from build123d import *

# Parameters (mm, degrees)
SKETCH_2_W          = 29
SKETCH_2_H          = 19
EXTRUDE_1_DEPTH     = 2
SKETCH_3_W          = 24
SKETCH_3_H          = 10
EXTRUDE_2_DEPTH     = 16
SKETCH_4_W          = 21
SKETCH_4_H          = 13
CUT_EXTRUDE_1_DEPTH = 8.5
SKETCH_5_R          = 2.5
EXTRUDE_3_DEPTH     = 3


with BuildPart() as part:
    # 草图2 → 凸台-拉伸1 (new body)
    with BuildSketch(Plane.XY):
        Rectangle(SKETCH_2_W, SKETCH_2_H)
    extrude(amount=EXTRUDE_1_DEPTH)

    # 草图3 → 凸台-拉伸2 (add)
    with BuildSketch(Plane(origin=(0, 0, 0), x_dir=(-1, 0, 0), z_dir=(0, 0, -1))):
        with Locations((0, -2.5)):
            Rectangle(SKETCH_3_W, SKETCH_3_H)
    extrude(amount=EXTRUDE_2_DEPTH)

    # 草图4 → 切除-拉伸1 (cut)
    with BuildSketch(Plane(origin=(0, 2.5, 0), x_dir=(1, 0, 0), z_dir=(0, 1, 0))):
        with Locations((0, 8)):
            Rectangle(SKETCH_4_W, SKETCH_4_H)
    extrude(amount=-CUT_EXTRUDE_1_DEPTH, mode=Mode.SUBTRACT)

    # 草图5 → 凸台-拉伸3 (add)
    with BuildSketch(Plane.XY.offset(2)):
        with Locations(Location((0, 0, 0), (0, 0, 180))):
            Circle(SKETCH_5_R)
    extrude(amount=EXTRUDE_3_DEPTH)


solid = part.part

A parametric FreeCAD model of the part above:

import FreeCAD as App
import Part
import Sketcher
from FreeCAD import Vector


def add_polygon(sketch, points):
    """Adds a closed chain of lines whose ends are joined by coincident constraints."""
    first, n = sketch.GeometryCount, len(points)
    for a, b in zip(points, points[1:] + points[:1]):
        sketch.addGeometry(Part.LineSegment(App.Vector(*a, 0), App.Vector(*b, 0)), False)
    for i in range(n):
        sketch.addConstraint(Sketcher.Constraint("Coincident", first + i, 2, first + (i + 1) % n, 1))

doc = App.newDocument("Part")
body = doc.addObject("PartDesign::Body", "Body")

# Sketch on XY plane
sketch1 = body.newObject("Sketcher::SketchObject", "Sketch")
sketch1.AttachmentSupport = (doc.getObject("XY_Plane"), [""])
sketch1.MapMode = "FlatFace"
add_polygon(sketch1, [(-14, 10), (-14, -10), (14, -10), (14, 10)])  # lines 0-3
sketch1.addConstraint(Sketcher.Constraint("Vertical", 0))
sketch1.addConstraint(Sketcher.Constraint("Horizontal", 1))
sketch1.addConstraint(Sketcher.Constraint("Vertical", 2))
sketch1.addConstraint(Sketcher.Constraint("Horizontal", 3))
sketch1.addConstraint(Sketcher.Constraint("Symmetric", 0, 2, 2, 2, -1, 1))
sketch1.addConstraint(Sketcher.Constraint("DistanceX", 1, 1, 1, 2, 29.0))
sketch1.addConstraint(Sketcher.Constraint("DistanceY", 0, 2, 0, 1, 19.0))
pad1 = body.newObject("PartDesign::Pad", "Pad")
pad1.Profile = sketch1
pad1.Length = 2

# Sketch on XY plane
sketch2 = body.newObject("Sketcher::SketchObject", "Sketch001")
sketch2.AttachmentSupport = (doc.getObject("XY_Plane"), [""])
sketch2.MapMode = "FlatFace"
add_polygon(sketch2, [(12, 2), (12, -8), (-12, -8), (-12, 2)])  # lines 0-3
sketch2.addConstraint(Sketcher.Constraint("Vertical", 0))
sketch2.addConstraint(Sketcher.Constraint("Horizontal", 1))
sketch2.addConstraint(Sketcher.Constraint("Vertical", 2))
sketch2.addConstraint(Sketcher.Constraint("Horizontal", 3))
sketch2.addConstraint(Sketcher.Constraint("DistanceX", 1, 2, 1, 1, 24.0))
sketch2.addConstraint(Sketcher.Constraint("DistanceY", 0, 2, 0, 1, 10.0))
sketch2.addConstraint(Sketcher.Constraint("DistanceX", -1, 1, 0, 2, 12.0))
sketch2.addConstraint(Sketcher.Constraint("DistanceY", 0, 2, -1, 1, 7.5))
pad2 = body.newObject("PartDesign::Pad", "Pad001")
pad2.Profile = sketch2
pad2.Length = 16
pad2.Reversed = True

# Sketch on XZ plane
sketch3 = body.newObject("Sketcher::SketchObject", "Sketch002")
sketch3.AttachmentSupport = (doc.getObject("XZ_Plane"), [""])
sketch3.MapMode = "FlatFace"
sketch3.AttachmentOffset = App.Placement(Vector(0, 0, -2.5), App.Rotation())
add_polygon(sketch3, [(-10, -14), (-10, -2), (10, -2), (10, -14)])  # lines 0-3
sketch3.addConstraint(Sketcher.Constraint("Vertical", 0))
sketch3.addConstraint(Sketcher.Constraint("Horizontal", 1))
sketch3.addConstraint(Sketcher.Constraint("Vertical", 2))
sketch3.addConstraint(Sketcher.Constraint("Horizontal", 3))
sketch3.addConstraint(Sketcher.Constraint("DistanceX", 1, 1, 1, 2, 21.0))
sketch3.addConstraint(Sketcher.Constraint("DistanceY", 0, 1, 0, 2, 13.0))
sketch3.addConstraint(Sketcher.Constraint("DistanceX", 0, 2, -1, 1, 10.5))
sketch3.addConstraint(Sketcher.Constraint("DistanceY", 0, 2, -1, 1, 1.5))
pocket1 = body.newObject("PartDesign::Pocket", "Pocket")
pocket1.Profile = sketch3
pocket1.Length = 8.5
pocket1.Reversed = True

# Sketch on XY plane
sketch4 = body.newObject("Sketcher::SketchObject", "Sketch003")
sketch4.AttachmentSupport = (doc.getObject("XY_Plane"), [""])
sketch4.MapMode = "FlatFace"
sketch4.AttachmentOffset = App.Placement(Vector(0, 0, 2), App.Rotation())
sketch4.addGeometry(Part.Circle(Vector(0, 0, 0), Vector(0, 0, 1), 2.5), False)
sketch4.addConstraint(Sketcher.Constraint("Coincident", 0, 3, -1, 1))
sketch4.addConstraint(Sketcher.Constraint("Diameter", 0, 5.0))
pad3 = body.newObject("PartDesign::Pad", "Pad002")
pad3.Profile = sketch4
pad3.Length = 3

doc.recompute()
